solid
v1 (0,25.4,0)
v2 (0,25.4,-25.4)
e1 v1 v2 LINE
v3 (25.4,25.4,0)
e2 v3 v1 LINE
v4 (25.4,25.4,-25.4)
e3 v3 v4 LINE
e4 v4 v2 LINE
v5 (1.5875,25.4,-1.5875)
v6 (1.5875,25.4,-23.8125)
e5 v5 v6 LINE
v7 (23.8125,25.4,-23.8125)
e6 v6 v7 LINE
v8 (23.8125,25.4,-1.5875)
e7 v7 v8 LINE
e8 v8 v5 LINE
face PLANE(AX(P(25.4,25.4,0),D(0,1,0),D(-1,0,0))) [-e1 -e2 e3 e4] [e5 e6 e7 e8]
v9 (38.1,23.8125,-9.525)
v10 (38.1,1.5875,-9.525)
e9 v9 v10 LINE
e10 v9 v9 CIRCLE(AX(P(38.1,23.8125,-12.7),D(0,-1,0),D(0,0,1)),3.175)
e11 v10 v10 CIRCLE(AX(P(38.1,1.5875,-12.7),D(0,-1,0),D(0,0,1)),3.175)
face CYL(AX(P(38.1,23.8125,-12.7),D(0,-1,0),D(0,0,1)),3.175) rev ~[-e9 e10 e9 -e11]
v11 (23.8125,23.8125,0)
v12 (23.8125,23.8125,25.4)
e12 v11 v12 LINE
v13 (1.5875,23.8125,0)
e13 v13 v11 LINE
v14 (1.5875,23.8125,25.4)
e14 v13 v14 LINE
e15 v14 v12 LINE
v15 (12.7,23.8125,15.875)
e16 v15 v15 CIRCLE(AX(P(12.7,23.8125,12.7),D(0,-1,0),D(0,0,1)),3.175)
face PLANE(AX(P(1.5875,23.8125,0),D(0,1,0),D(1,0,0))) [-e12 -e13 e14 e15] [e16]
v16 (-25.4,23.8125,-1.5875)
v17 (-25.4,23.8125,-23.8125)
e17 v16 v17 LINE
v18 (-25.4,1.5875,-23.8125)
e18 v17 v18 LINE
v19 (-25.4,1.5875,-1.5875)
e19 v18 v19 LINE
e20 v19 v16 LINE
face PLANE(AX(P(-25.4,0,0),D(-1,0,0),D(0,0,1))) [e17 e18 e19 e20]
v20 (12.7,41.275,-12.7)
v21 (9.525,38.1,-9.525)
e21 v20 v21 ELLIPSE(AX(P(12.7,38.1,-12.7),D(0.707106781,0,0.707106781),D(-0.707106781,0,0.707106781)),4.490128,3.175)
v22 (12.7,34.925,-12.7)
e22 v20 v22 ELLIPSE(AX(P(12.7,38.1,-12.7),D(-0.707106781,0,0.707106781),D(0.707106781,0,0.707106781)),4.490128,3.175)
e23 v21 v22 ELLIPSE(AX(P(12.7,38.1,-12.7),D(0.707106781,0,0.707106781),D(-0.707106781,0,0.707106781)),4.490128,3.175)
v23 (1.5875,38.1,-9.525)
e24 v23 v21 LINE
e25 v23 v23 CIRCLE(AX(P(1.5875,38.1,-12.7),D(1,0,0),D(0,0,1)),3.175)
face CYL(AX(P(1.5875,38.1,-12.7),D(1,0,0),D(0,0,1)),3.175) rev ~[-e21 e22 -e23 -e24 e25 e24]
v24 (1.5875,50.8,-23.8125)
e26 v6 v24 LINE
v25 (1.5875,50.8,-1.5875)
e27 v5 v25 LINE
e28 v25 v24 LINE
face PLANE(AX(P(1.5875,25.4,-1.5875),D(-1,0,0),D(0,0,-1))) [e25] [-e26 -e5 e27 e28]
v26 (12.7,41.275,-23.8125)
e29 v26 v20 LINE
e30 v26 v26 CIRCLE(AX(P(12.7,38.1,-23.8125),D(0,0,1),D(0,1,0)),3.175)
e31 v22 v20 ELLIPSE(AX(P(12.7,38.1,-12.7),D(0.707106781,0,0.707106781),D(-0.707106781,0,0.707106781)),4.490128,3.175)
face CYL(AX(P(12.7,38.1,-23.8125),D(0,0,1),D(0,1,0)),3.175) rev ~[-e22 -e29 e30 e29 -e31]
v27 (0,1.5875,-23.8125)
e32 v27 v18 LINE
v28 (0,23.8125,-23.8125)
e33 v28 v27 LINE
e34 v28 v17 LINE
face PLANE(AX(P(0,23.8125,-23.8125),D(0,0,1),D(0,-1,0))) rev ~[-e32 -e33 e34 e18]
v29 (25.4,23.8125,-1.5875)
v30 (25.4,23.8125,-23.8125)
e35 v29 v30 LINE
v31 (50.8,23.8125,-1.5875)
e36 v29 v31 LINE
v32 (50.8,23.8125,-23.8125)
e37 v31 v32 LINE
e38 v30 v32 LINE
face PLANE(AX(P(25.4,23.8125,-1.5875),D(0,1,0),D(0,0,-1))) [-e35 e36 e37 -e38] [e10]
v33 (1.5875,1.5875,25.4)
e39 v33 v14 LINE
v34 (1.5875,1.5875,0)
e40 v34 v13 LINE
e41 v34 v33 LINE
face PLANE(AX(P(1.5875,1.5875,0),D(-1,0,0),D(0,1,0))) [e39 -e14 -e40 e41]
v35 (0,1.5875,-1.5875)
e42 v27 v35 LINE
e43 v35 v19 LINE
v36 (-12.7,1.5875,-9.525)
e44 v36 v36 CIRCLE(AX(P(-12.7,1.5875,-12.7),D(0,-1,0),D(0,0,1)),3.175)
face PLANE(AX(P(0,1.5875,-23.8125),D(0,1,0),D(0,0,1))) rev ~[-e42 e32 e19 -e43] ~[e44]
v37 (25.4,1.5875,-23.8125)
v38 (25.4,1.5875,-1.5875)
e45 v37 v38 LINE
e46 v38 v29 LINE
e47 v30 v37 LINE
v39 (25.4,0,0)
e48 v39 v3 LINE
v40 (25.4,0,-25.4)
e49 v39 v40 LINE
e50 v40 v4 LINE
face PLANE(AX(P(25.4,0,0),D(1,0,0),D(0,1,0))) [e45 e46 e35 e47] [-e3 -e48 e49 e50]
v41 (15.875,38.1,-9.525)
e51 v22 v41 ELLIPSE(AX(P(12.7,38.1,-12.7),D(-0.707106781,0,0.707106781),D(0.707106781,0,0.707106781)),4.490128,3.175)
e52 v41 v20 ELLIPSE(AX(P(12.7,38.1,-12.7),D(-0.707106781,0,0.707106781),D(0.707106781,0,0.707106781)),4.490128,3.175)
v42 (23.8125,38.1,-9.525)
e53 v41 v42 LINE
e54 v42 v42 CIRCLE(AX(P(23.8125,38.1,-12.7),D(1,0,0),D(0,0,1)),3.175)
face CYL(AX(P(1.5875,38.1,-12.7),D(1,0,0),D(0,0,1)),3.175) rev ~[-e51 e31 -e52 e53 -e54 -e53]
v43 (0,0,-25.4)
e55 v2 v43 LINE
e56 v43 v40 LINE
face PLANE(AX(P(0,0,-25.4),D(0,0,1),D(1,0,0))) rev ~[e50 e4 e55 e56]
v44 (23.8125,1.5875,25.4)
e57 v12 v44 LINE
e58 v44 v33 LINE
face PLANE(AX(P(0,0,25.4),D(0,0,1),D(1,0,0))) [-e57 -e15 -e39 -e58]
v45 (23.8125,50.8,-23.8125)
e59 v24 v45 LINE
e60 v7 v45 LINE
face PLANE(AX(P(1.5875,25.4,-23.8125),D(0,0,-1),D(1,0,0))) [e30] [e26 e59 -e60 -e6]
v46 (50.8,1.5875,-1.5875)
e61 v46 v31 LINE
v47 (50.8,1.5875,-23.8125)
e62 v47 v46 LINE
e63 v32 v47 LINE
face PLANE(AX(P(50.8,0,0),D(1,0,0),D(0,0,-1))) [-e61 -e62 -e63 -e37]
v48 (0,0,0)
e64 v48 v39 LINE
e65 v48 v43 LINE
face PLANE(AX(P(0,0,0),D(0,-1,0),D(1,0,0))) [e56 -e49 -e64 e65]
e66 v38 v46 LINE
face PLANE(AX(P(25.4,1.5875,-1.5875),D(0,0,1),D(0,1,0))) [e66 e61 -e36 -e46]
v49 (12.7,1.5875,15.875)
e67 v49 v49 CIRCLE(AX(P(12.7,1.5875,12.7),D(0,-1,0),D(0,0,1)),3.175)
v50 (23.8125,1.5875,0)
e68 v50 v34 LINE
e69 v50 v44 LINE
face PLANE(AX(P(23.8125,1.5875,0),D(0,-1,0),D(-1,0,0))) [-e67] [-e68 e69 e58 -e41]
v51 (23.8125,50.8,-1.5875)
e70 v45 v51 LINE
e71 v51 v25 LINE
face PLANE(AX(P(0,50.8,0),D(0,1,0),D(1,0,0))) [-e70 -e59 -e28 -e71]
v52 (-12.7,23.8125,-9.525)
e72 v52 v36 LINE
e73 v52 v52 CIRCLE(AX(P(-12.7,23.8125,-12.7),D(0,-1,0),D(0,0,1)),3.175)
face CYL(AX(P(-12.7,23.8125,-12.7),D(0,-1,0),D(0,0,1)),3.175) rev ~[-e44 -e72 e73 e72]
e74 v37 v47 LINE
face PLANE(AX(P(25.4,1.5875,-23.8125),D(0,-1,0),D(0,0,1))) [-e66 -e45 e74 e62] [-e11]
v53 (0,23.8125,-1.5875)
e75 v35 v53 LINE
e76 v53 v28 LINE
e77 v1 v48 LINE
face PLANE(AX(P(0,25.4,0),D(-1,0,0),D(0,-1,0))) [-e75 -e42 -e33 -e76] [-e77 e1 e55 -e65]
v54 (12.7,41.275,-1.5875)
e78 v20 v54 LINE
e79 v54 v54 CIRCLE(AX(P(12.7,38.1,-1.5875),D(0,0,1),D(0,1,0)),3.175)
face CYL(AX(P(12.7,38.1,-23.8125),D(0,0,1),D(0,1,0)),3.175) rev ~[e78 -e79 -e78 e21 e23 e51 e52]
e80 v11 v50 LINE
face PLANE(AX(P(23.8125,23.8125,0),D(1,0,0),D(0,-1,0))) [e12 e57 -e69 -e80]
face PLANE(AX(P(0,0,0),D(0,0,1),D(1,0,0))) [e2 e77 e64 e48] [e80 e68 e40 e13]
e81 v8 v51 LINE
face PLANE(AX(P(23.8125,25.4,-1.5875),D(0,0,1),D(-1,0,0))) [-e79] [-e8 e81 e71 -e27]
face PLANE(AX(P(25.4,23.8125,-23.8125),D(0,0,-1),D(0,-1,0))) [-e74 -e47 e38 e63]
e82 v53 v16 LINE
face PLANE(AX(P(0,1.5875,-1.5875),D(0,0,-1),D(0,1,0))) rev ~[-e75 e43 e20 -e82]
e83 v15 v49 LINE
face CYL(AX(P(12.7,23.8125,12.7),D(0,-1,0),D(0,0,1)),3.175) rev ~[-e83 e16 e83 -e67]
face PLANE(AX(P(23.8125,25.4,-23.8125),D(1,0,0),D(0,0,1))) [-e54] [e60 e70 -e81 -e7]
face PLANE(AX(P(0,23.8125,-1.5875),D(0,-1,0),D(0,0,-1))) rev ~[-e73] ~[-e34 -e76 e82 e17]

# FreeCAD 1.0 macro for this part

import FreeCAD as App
import Part
import Sketcher
Q = App.Units.Quantity


def add_polygon(sketch, points):
    """Adds a closed chain of lines whose ends are joined by coincident constraints."""
    first, n = sketch.GeometryCount, len(points)
    for a, b in zip(points, points[1:] + points[:1]):
        sketch.addGeometry(Part.LineSegment(App.Vector(*a, 0), App.Vector(*b, 0)), False)
    for i in range(n):
        sketch.addConstraint(Sketcher.Constraint("Coincident", first + i, 2, first + (i + 1) % n, 1))

doc = App.newDocument("Part")
body = doc.addObject("PartDesign::Body", "Body")

# Sketch on XY plane
sketch1 = body.newObject("Sketcher::SketchObject", "Sketch")
sketch1.AttachmentSupport = (doc.getObject("XY_Plane"), [""])
sketch1.MapMode = "FlatFace"
add_polygon(sketch1, [(0, 25.4), (0, 0), (25.4, 0), (25.4, 25.4)])  # lines 0-3
sketch1.addConstraint(Sketcher.Constraint("Vertical", 0))
sketch1.addConstraint(Sketcher.Constraint("Horizontal", 1))
sketch1.addConstraint(Sketcher.Constraint("Vertical", 2))
sketch1.addConstraint(Sketcher.Constraint("Horizontal", 3))
sketch1.addConstraint(Sketcher.Constraint("Coincident", 0, 2, -1, 1))
sketch1.addConstraint(Sketcher.Constraint("Equal", 3, 0))
sketch1.addConstraint(Sketcher.Constraint("DistanceX", 1, 1, 1, 2, Q("1 in")))
pad1 = body.newObject("PartDesign::Pad", "Pad")
pad1.Profile = sketch1
pad1.Length = Q("1 in")
pad1.Reversed = True

# Sketch on XY plane
sketch2 = body.newObject("Sketcher::SketchObject", "Sketch001")
sketch2.AttachmentSupport = (doc.getObject("XY_Plane"), [""])
sketch2.MapMode = "FlatFace"
add_polygon(sketch2, [(23.8125, 23.8125), (1.5875, 23.8125), (1.5875, 1.5875), (23.8125, 1.5875)])  # lines 0-3
sketch2.addConstraint(Sketcher.Constraint("Horizontal", 0))
sketch2.addConstraint(Sketcher.Constraint("Vertical", 1))
sketch2.addConstraint(Sketcher.Constraint("Horizontal", 2))
sketch2.addConstraint(Sketcher.Constraint("Vertical", 3))
sketch2.addConstraint(Sketcher.Constraint("Equal", 2, 1))
sketch2.addConstraint(Sketcher.Constraint("DistanceX", -1, 1, 0, 2, Q("0.0625 in")))
sketch2.addConstraint(Sketcher.Constraint("DistanceY", -1, 1, 1, 2, Q("0.0625 in")))
sketch2.addConstraint(Sketcher.Constraint("DistanceX", 0, 2, 0, 1, Q("0.875 in")))
pad2 = body.newObject("PartDesign::Pad", "Pad001")
pad2.Profile = sketch2
pad2.Length = Q("1 in")

# Sketch on YZ plane
sketch3 = body.newObject("Sketcher::SketchObject", "Sketch002")
sketch3.AttachmentSupport = (doc.getObject("YZ_Plane"), [""])
sketch3.MapMode = "FlatFace"
sketch3.AttachmentOffset = App.Placement(App.Vector(0, 0, 1 * 25.4), App.Rotation())
add_polygon(sketch3, [(1.5875, -23.8125), (23.8125, -23.8125), (23.8125, -1.5875), (1.5875, -1.5875)])  # lines 0-3
sketch3.addConstraint(Sketcher.Constraint("Horizontal", 0))
sketch3.addConstraint(Sketcher.Constraint("Vertical", 1))
sketch3.addConstraint(Sketcher.Constraint("Horizontal", 2))
sketch3.addConstraint(Sketcher.Constraint("Vertical", 3))
sketch3.addConstraint(Sketcher.Constraint("Equal", 2, 1))
sketch3.addConstraint(Sketcher.Constraint("DistanceY", 1, 2, -1, 1, Q("0.0625 in")))
sketch3.addConstraint(Sketcher.Constraint("DistanceX", -1, 1, 2, 2, Q("0.0625 in")))
sketch3.addConstraint(Sketcher.Constraint("DistanceX", 0, 1, 0, 2, Q("0.875 in")))
pad3 = body.newObject("PartDesign::Pad", "Pad002")
pad3.Profile = sketch3
pad3.Length = Q("1 in")

# Sketch on XZ plane
sketch4 = body.newObject("Sketcher::SketchObject", "Sketch003")
sketch4.AttachmentSupport = (doc.getObject("XZ_Plane"), [""])
sketch4.MapMode = "FlatFace"
sketch4.AttachmentOffset = App.Placement(App.Vector(0, 0, -1 * 25.4), App.Rotation())
add_polygon(sketch4, [(23.8125, -23.8125), (1.5875, -23.8125), (1.5875, -1.5875), (23.8125, -1.5875)])  # lines 0-3
sketch4.addConstraint(Sketcher.Constraint("Horizontal", 0))
sketch4.addConstraint(Sketcher.Constraint("Vertical", 1))
sketch4.addConstraint(Sketcher.Constraint("Horizontal", 2))
sketch4.addConstraint(Sketcher.Constraint("Vertical", 3))
sketch4.addConstraint(Sketcher.Constraint("Equal", 2, 1))
sketch4.addConstraint(Sketcher.Constraint("DistanceX", -1, 1, 0, 2, Q("0.0625 in")))
sketch4.addConstraint(Sketcher.Constraint("DistanceY", 1, 2, -1, 1, Q("0.0625 in")))
sketch4.addConstraint(Sketcher.Constraint("DistanceX", 0, 2, 0, 1, Q("0.875 in")))
pad4 = body.newObject("PartDesign::Pad", "Pad003")
pad4.Profile = sketch4
pad4.Length = Q("1 in")
pad4.Reversed = True

# Sketch on YZ plane
sketch5 = body.newObject("Sketcher::SketchObject", "Sketch004")
sketch5.AttachmentSupport = (doc.getObject("YZ_Plane"), [""])
sketch5.MapMode = "FlatFace"
add_polygon(sketch5, [(23.8125, -1.5875), (23.8125, -23.8125), (1.5875, -23.8125), (1.5875, -1.5875)])  # lines 0-3
sketch5.addConstraint(Sketcher.Constraint("Vertical", 0))
sketch5.addConstraint(Sketcher.Constraint("Horizontal", 1))
sketch5.addConstraint(Sketcher.Constraint("Vertical", 2))
sketch5.addConstraint(Sketcher.Constraint("Horizontal", 3))
sketch5.addConstraint(Sketcher.Constraint("Equal", 3, 0))
sketch5.addConstraint(Sketcher.Constraint("DistanceX", -1, 1, 1, 2, Q("0.0625 in")))
sketch5.addConstraint(Sketcher.Constraint("DistanceY", 2, 2, -1, 1, Q("0.0625 in")))
sketch5.addConstraint(Sketcher.Constraint("DistanceX", 1, 2, 1, 1, Q("0.875 in")))
pad5 = body.newObject("PartDesign::Pad", "Pad004")
pad5.Profile = sketch5
pad5.Length = Q("1 in")
pad5.Reversed = True

# Sketch on XZ plane
sketch6 = body.newObject("Sketcher::SketchObject", "Sketch005")
sketch6.AttachmentSupport = (doc.getObject("XZ_Plane"), [""])
sketch6.MapMode = "FlatFace"
sketch6.AttachmentOffset = App.Placement(App.Vector(0, 0, -0.9375 * 25.4), App.Rotation())
sketch6.addGeometry(Part.Circle(App.Vector(-12.7, -12.7, 0), App.Vector(0, 0, 1), 3.175), False)
sketch6.addGeometry(Part.Circle(App.Vector(12.7, 12.7, 0), App.Vector(0, 0, 1), 3.175), False)
sketch6.addGeometry(Part.Circle(App.Vector(38.1, -12.7, 0), App.Vector(0, 0, 1), 3.175), False)
sketch6.addConstraint(Sketcher.Constraint("Equal", 0, 1))
sketch6.addConstraint(Sketcher.Constraint("Equal", 1, 2))
sketch6.addConstraint(Sketcher.Constraint("Symmetric", 0, 3, 1, 3, -1, 1))
sketch6.addConstraint(Sketcher.Constraint("Horizontal", 0, 3, 2, 3))
sketch6.addConstraint(Sketcher.Constraint("Diameter", 0, Q("0.25 in")))
sketch6.addConstraint(Sketcher.Constraint("DistanceX", 0, 3, 1, 3, Q("1 in")))
sketch6.addConstraint(Sketcher.Constraint("DistanceY", 0, 3, 1, 3, Q("1 in")))
sketch6.addConstraint(Sketcher.Constraint("DistanceX", 1, 3, 2, 3, Q("1 in")))
doc.recompute()
hole = body.newObject("PartDesign::Hole", "Hole")
hole.Profile = sketch6
hole.ThreadType = "None"
hole.Diameter = Q("0.25 in")
hole.DepthType = "Dimension"
hole.Depth = Q("1 in")
hole.DrillPoint = "Angled"
hole.DrillPointAngle = 118
hole.Reversed = True

# Sketch on XY plane
sketch7 = body.newObject("Sketcher::SketchObject", "Sketch006")
sketch7.AttachmentSupport = (doc.getObject("XY_Plane"), [""])
sketch7.MapMode = "FlatFace"
sketch7.AttachmentOffset = App.Placement(App.Vector(0, 0, -0.9375 * 25.4), App.Rotation())
sketch7.addGeometry(Part.Circle(App.Vector(12.7, 38.1, 0), App.Vector(0, 0, 1), 3.175), False)
sketch7.addConstraint(Sketcher.Constraint("Diameter", 0, Q("0.25 in")))
sketch7.addConstraint(Sketcher.Constraint("DistanceX", -1, 1, 0, 3, Q("0.5 in")))
sketch7.addConstraint(Sketcher.Constraint("DistanceY", -1, 1, 0, 3, Q("1.5 in")))
doc.recompute()
hole2 = body.newObject("PartDesign::Hole", "Hole001")
hole2.Profile = sketch7
hole2.ThreadType = "None"
hole2.Diameter = Q("0.25 in")
hole2.DepthType = "Dimension"
hole2.Depth = Q("1 in")
hole2.DrillPoint = "Angled"
hole2.DrillPointAngle = 118
hole2.Reversed = True

# Sketch on YZ plane
sketch8 = body.newObject("Sketcher::SketchObject", "Sketch007")
sketch8.AttachmentSupport = (doc.getObject("YZ_Plane"), [""])
sketch8.MapMode = "FlatFace"
sketch8.AttachmentOffset = App.Placement(App.Vector(0, 0, 0.0625 * 25.4), App.Rotation())
sketch8.addGeometry(Part.Circle(App.Vector(38.1, -12.7, 0), App.Vector(0, 0, 1), 3.175), False)
sketch8.addConstraint(Sketcher.Constraint("Diameter", 0, Q("0.25 in")))
sketch8.addConstraint(Sketcher.Constraint("DistanceX", -1, 1, 0, 3, Q("1.5 in")))
sketch8.addConstraint(Sketcher.Constraint("DistanceY", 0, 3, -1, 1, Q("0.5 in")))
doc.recompute()
hole3 = body.newObject("PartDesign::Hole", "Hole002")
hole3.Profile = sketch8
hole3.ThreadType = "None"
hole3.Diameter = Q("0.25 in")
hole3.DepthType = "Dimension"
hole3.Depth = Q("1 in")
hole3.DrillPoint = "Angled"
hole3.DrillPointAngle = 118
hole3.Reversed = True

doc.recompute()
